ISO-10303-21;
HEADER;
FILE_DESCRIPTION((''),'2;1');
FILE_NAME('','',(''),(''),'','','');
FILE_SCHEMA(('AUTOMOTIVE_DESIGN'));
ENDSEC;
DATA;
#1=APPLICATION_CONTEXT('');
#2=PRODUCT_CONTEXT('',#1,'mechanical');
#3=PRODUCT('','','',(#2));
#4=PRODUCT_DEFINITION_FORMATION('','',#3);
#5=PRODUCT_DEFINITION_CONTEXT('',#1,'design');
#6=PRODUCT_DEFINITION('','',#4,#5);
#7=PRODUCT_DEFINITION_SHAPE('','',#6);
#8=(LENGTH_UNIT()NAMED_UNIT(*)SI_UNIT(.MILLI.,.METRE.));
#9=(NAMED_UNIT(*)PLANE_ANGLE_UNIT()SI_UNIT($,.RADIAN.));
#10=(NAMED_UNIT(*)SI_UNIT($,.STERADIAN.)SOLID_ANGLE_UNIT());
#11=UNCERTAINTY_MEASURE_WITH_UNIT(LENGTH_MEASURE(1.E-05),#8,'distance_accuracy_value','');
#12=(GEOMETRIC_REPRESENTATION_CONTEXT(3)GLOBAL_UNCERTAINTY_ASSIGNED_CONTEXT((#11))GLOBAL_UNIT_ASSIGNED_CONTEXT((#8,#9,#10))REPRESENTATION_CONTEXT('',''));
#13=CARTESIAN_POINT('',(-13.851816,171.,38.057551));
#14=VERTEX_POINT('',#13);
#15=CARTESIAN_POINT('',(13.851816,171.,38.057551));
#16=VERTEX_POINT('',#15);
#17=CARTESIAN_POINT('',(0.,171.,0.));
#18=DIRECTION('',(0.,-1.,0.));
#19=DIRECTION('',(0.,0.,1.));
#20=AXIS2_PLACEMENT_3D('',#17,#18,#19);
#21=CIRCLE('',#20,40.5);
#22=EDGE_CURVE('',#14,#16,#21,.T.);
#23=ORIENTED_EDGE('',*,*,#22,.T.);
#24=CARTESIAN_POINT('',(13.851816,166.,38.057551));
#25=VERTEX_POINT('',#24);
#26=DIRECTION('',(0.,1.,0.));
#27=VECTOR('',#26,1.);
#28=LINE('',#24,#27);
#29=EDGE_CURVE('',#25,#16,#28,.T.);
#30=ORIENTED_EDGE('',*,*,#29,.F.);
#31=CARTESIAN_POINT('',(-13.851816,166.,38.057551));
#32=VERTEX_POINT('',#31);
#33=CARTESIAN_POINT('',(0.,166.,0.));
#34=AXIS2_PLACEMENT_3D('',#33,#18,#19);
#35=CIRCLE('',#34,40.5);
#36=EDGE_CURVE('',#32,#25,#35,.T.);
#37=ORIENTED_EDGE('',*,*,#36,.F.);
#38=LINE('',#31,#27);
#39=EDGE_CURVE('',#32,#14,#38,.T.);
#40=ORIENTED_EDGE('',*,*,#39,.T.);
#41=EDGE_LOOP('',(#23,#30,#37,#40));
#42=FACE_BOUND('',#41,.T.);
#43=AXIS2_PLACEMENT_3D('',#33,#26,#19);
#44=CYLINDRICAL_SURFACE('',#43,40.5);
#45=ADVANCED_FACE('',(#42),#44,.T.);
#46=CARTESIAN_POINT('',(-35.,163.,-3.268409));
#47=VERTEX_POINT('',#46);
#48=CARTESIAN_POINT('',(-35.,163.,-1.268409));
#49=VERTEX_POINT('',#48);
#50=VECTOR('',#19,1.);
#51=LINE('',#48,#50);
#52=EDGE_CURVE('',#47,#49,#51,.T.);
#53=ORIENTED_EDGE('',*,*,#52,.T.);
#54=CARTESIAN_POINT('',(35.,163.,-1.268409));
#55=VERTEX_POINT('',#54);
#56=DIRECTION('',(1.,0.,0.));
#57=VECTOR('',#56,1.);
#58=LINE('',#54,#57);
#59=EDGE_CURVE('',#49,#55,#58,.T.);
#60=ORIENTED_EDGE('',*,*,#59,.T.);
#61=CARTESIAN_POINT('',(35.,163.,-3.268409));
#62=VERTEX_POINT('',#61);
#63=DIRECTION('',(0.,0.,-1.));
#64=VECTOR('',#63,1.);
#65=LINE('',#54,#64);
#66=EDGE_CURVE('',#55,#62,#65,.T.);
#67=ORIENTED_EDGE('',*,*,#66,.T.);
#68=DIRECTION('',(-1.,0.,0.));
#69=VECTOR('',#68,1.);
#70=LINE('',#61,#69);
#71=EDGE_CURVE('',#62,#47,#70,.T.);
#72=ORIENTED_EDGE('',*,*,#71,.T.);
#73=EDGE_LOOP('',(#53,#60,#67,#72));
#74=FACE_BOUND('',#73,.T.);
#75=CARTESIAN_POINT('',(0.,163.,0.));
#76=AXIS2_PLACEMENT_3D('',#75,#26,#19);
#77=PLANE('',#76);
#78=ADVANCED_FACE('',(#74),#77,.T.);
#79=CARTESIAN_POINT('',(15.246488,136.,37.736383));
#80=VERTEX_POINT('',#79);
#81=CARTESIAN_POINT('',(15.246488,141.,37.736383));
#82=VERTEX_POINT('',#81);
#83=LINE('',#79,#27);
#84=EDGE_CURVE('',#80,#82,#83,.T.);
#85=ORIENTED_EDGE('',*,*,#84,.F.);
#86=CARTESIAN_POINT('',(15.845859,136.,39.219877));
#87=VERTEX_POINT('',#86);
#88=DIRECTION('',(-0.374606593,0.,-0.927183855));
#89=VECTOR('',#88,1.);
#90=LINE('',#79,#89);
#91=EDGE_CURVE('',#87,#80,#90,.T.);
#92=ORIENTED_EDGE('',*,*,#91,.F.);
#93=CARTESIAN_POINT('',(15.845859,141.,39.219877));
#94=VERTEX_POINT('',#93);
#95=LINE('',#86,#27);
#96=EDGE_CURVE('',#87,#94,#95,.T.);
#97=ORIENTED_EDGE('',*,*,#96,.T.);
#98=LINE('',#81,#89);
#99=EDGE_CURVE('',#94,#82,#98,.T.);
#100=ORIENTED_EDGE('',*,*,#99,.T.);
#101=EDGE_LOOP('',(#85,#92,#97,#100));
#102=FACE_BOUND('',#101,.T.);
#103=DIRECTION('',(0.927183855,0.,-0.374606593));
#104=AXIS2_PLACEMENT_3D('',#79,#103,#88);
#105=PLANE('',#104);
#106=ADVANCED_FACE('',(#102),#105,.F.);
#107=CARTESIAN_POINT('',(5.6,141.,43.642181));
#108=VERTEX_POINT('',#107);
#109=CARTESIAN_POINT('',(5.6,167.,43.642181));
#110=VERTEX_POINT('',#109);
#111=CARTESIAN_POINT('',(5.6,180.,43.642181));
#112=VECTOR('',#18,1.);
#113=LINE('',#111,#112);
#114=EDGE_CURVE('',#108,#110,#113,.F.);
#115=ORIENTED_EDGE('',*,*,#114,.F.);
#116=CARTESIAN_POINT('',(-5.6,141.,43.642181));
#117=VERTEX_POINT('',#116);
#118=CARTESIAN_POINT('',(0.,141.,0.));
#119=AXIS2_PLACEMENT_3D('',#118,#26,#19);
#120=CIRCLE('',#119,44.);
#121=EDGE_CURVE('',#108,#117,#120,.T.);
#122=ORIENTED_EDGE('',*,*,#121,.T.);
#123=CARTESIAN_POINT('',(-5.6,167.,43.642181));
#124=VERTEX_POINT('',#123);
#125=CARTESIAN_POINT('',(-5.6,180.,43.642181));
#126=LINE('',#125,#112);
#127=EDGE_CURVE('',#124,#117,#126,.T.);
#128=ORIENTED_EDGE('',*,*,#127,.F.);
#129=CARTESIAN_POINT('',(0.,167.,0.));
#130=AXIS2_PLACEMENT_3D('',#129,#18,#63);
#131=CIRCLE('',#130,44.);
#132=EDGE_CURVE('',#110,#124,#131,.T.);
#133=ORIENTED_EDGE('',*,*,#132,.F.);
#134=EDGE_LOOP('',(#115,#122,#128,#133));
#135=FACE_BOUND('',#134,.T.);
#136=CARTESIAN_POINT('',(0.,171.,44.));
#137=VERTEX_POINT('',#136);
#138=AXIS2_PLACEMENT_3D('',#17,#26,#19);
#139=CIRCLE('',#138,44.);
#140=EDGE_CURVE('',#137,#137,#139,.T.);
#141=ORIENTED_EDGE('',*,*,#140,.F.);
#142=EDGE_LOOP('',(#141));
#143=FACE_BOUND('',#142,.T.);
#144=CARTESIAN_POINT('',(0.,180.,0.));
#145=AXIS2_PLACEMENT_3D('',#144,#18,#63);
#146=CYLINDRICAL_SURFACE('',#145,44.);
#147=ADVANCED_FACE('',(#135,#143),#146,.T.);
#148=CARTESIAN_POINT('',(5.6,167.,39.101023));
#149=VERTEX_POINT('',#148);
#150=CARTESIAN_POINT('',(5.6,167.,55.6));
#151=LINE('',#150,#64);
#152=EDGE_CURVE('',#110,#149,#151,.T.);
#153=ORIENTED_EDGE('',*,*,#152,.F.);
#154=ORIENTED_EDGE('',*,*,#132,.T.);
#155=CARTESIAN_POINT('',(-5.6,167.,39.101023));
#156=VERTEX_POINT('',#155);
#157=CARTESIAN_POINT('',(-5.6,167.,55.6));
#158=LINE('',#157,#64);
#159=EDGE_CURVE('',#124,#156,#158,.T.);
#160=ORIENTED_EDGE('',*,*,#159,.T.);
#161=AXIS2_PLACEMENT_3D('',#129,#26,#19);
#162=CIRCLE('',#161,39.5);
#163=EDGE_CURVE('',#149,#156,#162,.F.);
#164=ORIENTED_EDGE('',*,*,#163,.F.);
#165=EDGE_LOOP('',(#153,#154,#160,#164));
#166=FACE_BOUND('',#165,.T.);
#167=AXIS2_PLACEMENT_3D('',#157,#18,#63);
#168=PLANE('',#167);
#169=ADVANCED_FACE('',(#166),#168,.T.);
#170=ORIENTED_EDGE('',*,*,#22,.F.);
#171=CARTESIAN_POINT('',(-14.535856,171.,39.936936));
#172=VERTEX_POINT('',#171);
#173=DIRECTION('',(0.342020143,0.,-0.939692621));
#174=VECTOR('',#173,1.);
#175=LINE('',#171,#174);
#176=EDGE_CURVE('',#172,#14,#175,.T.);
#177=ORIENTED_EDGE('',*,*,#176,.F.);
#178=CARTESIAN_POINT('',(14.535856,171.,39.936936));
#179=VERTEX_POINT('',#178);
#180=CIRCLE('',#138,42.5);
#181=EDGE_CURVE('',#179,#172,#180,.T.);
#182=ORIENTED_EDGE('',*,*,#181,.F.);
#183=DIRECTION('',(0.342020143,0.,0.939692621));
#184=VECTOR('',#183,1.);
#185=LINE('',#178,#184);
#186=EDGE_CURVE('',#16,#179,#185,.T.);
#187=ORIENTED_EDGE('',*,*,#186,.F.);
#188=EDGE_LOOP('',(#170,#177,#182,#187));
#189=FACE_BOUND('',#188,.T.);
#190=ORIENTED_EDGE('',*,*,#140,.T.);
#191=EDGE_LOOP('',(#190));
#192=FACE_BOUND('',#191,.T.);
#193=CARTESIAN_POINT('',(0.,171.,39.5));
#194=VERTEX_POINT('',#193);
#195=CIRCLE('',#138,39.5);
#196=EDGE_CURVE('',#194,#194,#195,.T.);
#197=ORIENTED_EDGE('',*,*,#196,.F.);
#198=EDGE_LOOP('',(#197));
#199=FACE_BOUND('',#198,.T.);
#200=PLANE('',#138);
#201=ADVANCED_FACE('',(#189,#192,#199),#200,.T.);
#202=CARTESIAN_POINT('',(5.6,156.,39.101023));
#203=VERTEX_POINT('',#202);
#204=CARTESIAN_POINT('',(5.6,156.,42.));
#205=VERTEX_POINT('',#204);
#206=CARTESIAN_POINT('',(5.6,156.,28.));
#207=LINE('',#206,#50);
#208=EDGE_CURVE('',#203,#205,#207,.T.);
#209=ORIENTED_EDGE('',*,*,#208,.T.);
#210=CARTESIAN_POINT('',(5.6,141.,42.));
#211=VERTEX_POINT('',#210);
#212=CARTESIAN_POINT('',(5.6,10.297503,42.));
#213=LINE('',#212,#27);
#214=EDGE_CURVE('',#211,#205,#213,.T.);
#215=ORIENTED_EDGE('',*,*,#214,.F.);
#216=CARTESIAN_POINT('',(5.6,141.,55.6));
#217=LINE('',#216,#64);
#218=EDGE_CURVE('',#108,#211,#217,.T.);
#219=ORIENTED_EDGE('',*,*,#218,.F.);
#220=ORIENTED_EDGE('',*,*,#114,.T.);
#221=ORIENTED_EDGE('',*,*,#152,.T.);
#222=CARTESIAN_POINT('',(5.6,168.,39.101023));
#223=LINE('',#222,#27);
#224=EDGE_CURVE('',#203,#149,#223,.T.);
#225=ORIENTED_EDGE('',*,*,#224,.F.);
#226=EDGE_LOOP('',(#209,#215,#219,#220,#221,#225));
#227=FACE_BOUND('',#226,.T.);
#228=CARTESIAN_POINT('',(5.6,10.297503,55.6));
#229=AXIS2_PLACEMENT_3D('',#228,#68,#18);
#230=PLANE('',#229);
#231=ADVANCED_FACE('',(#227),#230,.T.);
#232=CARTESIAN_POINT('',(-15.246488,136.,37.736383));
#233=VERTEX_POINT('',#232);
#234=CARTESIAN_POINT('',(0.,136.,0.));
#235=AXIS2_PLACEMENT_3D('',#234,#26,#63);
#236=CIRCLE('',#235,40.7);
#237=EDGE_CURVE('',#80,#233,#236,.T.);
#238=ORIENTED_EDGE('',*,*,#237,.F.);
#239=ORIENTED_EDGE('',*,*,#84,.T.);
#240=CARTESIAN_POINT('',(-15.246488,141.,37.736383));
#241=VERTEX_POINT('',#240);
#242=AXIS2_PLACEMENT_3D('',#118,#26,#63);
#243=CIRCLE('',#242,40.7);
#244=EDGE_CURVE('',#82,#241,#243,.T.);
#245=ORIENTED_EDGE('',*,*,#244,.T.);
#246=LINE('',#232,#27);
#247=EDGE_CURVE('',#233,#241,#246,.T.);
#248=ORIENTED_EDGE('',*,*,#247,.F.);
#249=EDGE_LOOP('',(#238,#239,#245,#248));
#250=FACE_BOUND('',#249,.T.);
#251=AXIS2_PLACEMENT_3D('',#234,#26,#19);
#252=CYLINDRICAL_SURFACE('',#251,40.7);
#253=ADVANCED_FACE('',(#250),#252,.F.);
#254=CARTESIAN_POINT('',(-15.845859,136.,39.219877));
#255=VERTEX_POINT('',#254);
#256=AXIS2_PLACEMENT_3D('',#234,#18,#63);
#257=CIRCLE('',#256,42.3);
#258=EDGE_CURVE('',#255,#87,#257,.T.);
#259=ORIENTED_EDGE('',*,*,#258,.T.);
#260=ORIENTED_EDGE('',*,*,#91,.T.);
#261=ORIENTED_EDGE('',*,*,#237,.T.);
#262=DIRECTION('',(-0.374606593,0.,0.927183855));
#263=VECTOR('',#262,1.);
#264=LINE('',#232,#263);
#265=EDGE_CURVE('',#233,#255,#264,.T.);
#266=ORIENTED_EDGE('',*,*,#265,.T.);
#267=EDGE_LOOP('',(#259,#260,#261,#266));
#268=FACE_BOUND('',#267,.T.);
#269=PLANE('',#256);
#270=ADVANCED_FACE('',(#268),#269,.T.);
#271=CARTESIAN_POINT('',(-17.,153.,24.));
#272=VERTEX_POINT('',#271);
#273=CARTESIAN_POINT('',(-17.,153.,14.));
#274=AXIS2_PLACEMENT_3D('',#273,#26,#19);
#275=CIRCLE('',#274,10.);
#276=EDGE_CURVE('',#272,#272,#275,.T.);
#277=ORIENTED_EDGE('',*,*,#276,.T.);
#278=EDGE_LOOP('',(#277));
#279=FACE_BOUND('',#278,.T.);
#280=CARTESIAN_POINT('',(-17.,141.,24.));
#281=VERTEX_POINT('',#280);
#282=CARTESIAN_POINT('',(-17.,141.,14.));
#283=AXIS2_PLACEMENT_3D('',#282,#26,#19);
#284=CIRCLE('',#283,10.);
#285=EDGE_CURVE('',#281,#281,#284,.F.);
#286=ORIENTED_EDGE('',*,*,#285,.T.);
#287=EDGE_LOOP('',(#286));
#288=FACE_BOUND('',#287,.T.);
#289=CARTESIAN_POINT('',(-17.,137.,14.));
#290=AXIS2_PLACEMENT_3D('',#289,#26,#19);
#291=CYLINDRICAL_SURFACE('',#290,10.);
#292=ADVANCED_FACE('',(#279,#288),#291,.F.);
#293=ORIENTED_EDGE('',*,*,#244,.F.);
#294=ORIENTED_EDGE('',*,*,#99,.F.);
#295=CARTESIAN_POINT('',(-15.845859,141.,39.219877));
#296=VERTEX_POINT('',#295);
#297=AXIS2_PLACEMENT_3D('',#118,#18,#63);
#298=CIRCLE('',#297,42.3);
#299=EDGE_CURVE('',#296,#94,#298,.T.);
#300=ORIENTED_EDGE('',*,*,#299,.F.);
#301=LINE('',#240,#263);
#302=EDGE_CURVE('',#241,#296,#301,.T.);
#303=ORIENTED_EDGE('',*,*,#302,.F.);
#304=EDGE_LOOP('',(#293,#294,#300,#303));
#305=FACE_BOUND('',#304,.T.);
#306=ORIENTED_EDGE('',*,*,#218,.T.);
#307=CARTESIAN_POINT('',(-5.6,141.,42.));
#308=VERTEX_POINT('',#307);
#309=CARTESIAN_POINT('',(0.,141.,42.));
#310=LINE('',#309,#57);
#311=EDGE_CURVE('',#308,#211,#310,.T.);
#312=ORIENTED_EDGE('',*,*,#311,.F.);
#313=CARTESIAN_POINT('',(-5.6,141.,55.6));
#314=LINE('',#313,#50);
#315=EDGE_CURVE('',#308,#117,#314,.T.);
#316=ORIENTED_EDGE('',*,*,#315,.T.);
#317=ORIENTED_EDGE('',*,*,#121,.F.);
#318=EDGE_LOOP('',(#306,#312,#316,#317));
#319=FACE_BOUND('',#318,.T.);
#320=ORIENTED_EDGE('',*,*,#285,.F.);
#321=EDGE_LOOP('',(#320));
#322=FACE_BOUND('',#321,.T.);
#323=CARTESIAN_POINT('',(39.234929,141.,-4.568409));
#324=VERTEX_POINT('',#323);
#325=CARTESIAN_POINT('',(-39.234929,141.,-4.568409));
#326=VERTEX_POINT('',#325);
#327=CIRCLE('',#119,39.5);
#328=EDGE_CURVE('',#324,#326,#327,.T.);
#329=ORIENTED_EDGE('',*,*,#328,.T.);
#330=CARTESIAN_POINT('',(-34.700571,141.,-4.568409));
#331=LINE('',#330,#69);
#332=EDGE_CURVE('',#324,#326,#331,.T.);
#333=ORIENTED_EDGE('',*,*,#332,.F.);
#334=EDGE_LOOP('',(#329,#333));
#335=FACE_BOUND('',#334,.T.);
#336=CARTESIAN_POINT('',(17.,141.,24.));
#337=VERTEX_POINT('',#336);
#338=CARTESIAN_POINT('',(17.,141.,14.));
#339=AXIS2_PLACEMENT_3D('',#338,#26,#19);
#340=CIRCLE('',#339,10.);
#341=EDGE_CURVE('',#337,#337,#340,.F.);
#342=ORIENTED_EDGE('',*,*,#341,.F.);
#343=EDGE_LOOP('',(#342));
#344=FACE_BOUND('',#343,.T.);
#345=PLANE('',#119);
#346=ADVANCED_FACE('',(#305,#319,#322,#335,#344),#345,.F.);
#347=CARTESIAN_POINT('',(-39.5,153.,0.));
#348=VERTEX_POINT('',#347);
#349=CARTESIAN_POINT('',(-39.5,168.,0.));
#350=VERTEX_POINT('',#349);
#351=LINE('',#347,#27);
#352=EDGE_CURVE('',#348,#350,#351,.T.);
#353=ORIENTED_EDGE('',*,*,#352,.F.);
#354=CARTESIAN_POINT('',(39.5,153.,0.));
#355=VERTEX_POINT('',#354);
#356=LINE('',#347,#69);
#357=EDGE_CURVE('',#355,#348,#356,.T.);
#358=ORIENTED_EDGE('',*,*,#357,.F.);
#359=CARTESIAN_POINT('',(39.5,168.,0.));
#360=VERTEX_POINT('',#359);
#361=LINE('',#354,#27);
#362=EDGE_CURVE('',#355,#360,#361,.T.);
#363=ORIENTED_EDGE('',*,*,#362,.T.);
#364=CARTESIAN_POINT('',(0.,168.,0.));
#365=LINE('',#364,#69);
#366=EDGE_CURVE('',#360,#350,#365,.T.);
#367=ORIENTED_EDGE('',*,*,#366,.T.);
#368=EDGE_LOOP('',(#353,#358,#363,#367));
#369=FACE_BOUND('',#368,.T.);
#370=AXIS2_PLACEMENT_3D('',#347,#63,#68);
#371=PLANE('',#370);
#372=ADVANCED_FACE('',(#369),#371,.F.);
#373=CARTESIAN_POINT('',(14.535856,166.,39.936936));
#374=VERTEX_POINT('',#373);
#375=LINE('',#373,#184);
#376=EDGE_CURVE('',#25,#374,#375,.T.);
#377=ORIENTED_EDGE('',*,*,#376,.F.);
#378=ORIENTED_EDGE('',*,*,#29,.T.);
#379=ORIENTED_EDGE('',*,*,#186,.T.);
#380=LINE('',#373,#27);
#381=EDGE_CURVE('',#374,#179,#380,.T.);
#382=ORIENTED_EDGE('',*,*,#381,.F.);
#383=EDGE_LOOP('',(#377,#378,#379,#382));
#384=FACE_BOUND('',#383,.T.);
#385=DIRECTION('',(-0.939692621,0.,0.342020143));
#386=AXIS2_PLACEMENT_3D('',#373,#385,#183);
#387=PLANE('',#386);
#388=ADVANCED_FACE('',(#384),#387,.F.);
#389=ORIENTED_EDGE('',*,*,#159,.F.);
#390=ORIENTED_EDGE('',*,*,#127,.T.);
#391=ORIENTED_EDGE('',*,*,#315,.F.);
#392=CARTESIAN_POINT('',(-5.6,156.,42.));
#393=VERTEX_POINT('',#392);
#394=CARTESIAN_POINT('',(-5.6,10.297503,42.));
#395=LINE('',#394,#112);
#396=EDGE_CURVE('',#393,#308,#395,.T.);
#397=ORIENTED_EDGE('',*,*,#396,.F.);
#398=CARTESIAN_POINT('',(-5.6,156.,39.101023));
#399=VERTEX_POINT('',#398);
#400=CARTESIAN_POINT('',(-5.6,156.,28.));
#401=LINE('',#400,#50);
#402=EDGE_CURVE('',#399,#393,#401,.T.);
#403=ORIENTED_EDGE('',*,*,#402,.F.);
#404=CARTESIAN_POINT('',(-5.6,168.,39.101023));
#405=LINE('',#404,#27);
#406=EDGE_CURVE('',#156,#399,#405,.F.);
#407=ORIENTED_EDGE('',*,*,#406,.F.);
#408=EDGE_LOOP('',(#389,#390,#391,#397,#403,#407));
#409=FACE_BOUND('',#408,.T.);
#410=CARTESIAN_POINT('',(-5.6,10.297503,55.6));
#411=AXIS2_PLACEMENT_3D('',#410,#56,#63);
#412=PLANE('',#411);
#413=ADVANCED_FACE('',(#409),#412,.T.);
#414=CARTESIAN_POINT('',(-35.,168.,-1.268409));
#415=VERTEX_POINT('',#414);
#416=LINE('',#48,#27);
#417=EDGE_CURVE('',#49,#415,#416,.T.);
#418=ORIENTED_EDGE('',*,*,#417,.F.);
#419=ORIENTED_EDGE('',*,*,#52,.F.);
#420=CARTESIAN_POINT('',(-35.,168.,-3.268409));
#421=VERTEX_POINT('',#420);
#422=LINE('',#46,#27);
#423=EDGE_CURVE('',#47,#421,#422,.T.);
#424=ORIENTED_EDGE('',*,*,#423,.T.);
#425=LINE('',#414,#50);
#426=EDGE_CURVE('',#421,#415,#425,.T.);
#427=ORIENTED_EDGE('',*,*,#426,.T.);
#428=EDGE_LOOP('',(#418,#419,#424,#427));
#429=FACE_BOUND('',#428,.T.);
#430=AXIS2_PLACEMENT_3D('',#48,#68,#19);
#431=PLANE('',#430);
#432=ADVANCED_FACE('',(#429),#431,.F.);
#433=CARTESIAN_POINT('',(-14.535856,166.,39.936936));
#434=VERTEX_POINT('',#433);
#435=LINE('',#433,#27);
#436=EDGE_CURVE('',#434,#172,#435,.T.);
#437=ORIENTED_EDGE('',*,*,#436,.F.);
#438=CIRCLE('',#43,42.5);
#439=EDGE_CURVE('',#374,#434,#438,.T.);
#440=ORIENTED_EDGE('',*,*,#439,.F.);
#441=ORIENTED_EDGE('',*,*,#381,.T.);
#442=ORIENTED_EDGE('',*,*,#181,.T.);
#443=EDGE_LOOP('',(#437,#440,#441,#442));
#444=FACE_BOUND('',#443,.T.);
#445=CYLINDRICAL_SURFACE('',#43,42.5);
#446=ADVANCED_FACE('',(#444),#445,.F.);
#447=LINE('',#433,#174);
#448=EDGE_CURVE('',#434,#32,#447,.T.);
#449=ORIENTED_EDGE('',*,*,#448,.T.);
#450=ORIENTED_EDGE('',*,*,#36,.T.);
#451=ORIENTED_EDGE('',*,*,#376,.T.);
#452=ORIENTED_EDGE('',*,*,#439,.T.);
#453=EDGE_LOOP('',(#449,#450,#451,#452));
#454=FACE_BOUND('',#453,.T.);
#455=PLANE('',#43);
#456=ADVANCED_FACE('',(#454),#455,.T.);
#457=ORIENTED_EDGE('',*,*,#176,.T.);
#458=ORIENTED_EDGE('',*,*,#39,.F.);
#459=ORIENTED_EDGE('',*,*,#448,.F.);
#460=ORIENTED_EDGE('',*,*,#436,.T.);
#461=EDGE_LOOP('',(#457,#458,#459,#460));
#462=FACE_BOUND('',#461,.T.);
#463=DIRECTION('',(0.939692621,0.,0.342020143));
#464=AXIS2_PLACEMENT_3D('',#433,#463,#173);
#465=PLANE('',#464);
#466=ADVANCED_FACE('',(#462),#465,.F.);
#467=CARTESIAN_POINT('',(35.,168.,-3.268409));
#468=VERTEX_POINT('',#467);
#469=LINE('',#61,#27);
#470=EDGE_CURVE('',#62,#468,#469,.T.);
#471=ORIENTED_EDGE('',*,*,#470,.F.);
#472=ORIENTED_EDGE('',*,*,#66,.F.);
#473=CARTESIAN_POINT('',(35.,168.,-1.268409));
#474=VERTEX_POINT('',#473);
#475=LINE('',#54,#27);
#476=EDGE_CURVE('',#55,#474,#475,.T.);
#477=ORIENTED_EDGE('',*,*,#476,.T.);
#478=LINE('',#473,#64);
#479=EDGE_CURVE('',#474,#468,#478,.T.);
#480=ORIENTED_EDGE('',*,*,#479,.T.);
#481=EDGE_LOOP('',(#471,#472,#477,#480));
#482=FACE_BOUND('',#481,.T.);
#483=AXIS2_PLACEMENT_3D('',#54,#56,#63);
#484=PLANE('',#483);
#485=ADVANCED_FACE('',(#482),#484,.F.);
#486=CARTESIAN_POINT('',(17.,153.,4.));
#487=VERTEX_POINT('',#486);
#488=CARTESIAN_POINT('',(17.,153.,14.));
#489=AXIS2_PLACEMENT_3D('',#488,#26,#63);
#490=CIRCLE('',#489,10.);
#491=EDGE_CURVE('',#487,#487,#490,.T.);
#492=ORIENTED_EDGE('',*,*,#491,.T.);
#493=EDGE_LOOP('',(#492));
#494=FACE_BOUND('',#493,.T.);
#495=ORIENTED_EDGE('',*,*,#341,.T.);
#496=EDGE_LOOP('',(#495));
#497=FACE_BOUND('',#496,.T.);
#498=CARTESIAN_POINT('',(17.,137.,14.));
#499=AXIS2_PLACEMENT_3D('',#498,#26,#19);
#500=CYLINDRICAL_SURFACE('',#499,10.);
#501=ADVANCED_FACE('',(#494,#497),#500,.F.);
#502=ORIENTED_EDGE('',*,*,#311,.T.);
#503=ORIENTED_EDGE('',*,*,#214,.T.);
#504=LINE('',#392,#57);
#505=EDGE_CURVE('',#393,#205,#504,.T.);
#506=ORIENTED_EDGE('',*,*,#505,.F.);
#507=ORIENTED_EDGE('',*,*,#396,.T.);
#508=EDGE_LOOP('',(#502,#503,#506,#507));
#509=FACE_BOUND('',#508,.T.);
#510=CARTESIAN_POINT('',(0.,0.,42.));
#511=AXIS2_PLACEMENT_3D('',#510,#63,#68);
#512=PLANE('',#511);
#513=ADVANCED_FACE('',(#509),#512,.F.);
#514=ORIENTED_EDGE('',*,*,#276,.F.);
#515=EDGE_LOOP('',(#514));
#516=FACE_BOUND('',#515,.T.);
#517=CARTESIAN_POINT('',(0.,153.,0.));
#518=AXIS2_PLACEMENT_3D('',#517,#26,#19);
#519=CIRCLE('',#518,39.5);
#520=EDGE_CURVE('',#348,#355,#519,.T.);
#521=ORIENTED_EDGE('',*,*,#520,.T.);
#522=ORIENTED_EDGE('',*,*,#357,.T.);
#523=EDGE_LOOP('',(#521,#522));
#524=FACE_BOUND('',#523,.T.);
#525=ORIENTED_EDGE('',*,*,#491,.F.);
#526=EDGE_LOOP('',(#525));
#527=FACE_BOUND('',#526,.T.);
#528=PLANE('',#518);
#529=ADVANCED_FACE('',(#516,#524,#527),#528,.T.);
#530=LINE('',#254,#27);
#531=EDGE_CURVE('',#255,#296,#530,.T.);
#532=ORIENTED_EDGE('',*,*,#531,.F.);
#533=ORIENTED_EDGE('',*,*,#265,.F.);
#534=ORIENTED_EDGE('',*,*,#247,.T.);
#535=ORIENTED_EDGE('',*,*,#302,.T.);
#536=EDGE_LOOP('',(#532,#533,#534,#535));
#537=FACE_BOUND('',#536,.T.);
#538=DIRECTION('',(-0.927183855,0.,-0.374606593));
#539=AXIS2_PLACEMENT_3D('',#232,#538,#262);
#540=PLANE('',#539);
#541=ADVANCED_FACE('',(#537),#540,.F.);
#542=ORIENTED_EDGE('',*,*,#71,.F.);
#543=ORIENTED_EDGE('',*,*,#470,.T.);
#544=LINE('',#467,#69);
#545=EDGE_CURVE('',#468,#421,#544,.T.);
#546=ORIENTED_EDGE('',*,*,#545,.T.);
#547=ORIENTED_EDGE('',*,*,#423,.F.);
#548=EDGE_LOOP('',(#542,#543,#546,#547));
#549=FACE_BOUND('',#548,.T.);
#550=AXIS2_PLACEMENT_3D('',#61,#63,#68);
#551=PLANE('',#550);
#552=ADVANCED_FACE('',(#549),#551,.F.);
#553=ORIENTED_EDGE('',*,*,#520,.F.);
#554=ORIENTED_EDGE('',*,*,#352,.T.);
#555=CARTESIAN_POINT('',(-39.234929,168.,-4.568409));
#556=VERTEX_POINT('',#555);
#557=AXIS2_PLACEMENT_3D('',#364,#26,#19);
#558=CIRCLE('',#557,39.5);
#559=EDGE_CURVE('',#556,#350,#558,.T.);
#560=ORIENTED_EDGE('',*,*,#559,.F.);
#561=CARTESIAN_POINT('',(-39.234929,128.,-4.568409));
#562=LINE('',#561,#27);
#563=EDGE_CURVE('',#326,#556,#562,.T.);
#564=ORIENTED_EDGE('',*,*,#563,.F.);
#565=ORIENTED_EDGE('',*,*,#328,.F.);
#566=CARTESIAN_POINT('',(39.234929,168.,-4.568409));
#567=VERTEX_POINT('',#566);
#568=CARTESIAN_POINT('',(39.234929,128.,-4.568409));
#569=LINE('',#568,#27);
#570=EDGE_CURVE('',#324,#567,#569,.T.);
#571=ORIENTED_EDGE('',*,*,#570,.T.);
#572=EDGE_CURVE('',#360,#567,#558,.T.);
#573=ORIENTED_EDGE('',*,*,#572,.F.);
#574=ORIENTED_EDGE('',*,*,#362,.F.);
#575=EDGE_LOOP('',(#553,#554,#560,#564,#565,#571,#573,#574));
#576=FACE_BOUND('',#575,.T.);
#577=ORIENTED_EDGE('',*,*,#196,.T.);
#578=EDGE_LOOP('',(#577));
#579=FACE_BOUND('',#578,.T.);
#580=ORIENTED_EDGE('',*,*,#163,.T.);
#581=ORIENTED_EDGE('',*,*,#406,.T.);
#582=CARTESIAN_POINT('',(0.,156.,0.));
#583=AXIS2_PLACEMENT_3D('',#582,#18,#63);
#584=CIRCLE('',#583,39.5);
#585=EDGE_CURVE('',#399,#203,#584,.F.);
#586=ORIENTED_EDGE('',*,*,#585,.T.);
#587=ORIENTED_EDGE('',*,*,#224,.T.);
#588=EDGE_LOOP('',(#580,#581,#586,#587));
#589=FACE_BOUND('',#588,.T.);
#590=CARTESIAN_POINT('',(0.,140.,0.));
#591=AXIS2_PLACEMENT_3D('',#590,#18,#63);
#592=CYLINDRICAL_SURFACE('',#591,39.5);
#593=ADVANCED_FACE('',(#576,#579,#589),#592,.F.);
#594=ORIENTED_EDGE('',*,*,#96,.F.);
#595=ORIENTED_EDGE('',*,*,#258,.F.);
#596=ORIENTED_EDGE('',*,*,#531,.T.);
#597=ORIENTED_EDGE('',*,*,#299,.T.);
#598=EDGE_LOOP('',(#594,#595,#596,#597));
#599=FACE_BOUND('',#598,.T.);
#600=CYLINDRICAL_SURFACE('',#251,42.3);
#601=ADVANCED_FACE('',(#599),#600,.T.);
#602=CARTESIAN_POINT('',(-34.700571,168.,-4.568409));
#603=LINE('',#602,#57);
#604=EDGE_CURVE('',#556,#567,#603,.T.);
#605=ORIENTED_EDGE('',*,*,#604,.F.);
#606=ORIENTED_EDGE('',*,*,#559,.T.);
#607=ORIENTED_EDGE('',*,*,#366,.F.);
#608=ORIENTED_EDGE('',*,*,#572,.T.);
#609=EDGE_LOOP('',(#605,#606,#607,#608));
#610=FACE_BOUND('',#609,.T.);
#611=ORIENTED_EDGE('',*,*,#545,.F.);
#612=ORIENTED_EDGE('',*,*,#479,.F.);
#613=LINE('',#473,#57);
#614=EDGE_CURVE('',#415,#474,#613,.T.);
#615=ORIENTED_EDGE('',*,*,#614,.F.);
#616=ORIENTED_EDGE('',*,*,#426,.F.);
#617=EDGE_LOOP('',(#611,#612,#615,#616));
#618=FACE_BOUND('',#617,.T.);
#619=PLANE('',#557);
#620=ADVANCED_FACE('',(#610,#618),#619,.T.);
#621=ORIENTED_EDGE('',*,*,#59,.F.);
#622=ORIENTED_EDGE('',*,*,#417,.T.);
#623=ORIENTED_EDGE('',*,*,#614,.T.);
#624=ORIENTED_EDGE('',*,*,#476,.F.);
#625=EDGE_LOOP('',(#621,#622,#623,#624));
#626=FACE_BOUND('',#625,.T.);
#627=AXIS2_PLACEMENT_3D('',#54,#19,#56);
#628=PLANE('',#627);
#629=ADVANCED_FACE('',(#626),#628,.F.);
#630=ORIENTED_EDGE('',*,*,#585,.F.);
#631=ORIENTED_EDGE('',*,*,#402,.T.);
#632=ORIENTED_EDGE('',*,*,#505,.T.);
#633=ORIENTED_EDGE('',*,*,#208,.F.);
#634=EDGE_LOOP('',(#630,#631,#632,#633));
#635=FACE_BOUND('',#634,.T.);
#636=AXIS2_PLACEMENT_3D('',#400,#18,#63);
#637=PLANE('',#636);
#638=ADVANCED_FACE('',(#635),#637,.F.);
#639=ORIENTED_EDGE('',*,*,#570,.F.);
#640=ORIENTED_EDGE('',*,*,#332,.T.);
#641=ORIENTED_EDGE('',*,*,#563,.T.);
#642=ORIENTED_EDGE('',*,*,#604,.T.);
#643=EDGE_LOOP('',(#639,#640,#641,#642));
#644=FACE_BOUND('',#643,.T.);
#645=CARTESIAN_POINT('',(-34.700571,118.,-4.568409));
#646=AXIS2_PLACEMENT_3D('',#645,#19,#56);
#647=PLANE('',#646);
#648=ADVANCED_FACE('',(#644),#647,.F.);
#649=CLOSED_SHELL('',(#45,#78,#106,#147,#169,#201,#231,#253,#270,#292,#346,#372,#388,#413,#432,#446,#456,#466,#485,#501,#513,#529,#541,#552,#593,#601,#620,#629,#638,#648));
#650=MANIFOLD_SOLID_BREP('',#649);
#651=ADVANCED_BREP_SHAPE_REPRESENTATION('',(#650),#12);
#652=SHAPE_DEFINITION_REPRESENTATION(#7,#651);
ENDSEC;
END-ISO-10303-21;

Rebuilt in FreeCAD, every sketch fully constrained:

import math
import FreeCAD as App
import Part
import Sketcher
Q = App.Units.Quantity


def add_polygon(sketch, points):
    """Adds a closed chain of lines whose ends are joined by coincident constraints."""
    first, n = sketch.GeometryCount, len(points)
    for a, b in zip(points, points[1:] + points[:1]):
        sketch.addGeometry(Part.LineSegment(App.Vector(*a, 0), App.Vector(*b, 0)), False)
    for i in range(n):
        sketch.addConstraint(Sketcher.Constraint("Coincident", first + i, 2, first + (i + 1) % n, 1))

doc = App.newDocument("Part")
body = doc.addObject("PartDesign::Body", "Body")

# Sketch on XZ plane
sketch1 = doc.addObject("Sketcher::SketchObject", "Sketch")
body.addObject(sketch1)
sketch1.AttachmentSupport = (doc.XZ_Plane, [""])
sketch1.MapMode = "FlatFace"
sketch1.addGeometry(Part.Circle(App.Vector(0, 0, 0), App.Vector(0, 0, 1), 44), False)
sketch1.addConstraint([
    Sketcher.Constraint("Coincident", 0, 3, -1, 1),
    Sketcher.Constraint("Diameter", 0, Q("88 mm")),
])
pad1 = doc.addObject("PartDesign::Pad", "Pad")
body.addObject(pad1)
pad1.Profile = sketch1
pad1.Length = 180
pad1.Reversed = True

# Sketch on XZ plane
sketch2 = doc.addObject("Sketcher::SketchObject", "Sketch001")
body.addObject(sketch2)
sketch2.AttachmentSupport = (doc.XZ_Plane, [""])
sketch2.MapMode = "FlatFace"
sketch2.AttachmentOffset = App.Placement(App.Vector(0, 0, -25), App.Rotation())
sketch2.addGeometry(Part.Circle(App.Vector(0, 0, 0), App.Vector(0, 0, 1), 39.5), False)
sketch2.addConstraint([
    Sketcher.Constraint("Coincident", 0, 3, -1, 1),
    Sketcher.Constraint("Diameter", 0, Q("79 mm")),
])
pocket1 = doc.addObject("PartDesign::Pocket", "Pocket")
body.addObject(pocket1)
pocket1.Profile = sketch2
pocket1.Length = 115

# Sketch on XZ plane
sketch3 = doc.addObject("Sketcher::SketchObject", "Sketch002")
body.addObject(sketch3)
sketch3.AttachmentSupport = (doc.XZ_Plane, [""])
sketch3.MapMode = "FlatFace"
sketch3.AttachmentOffset = App.Placement(App.Vector(0, 0, -41), App.Rotation())
sketch3.addGeometry(Part.Circle(App.Vector(0, 0, 0), App.Vector(0, 0, 1), 35), False)
sketch3.addConstraint([
    Sketcher.Constraint("Coincident", 0, 3, -1, 1),
    Sketcher.Constraint("Diameter", 0, Q("70 mm")),
])
pocket2 = doc.addObject("PartDesign::Pocket", "Pocket001")
body.addObject(pocket2)
pocket2.Profile = sketch3
pocket2.Length = 18
pocket2.Reversed = True

# Sketch on XY plane
sketch4 = doc.addObject("Sketcher::SketchObject", "Sketch003")
body.addObject(sketch4)
sketch4.AttachmentSupport = (doc.XY_Plane, [""])
sketch4.MapMode = "FlatFace"
sketch4.AttachmentOffset = App.Placement(App.Vector(0, 0, 42), App.Rotation())
add_polygon(sketch4, [(-5.6, 167), (-5.6, 10.297503), (5.6, 10.297503), (5.6, 167)])  # lines 0-3
sketch4.addConstraint([
    Sketcher.Constraint("Vertical", 0),
    Sketcher.Constraint("Horizontal", 1),
    Sketcher.Constraint("Vertical", 2),
    Sketcher.Constraint("Horizontal", 3),
    Sketcher.Constraint("DistanceX", 1, 1, 1, 2, Q("11.2 mm")),
    Sketcher.Constraint("DistanceY", -1, 1, 2, 2, Q("167 mm")),
    Sketcher.Constraint("DistanceX", 0, 2, -1, 1, Q("5.6 mm")),
    Sketcher.Constraint("DistanceY", 0, 2, 0, 1, Q("156.702497 mm")),
])
pocket3 = doc.addObject("PartDesign::Pocket", "Pocket002")
body.addObject(pocket3)
pocket3.Profile = sketch4
pocket3.Length = 13.6
pocket3.Reversed = True

# Sketch on XY plane
sketch5 = doc.addObject("Sketcher::SketchObject", "Sketch004")
body.addObject(sketch5)
sketch5.AttachmentSupport = (doc.XY_Plane, [""])
sketch5.MapMode = "FlatFace"
sketch5.AttachmentOffset = App.Placement(App.Vector(0, 0, 42), App.Rotation())
add_polygon(sketch5, [(-5.6, 18.973871), (-5.6, 10.297503), (5.6, 10.297503), (5.6, 18.973871)])  # lines 0-3
sketch5.addConstraint([
    Sketcher.Constraint("Vertical", 0),
    Sketcher.Constraint("Horizontal", 1),
    Sketcher.Constraint("Vertical", 2),
    Sketcher.Constraint("Horizontal", 3),
    Sketcher.Constraint("DistanceX", 1, 1, 1, 2, Q("11.2 mm")),
    Sketcher.Constraint("DistanceX", 0, 2, -1, 1, Q("5.6 mm")),
    Sketcher.Constraint("DistanceY", 0, 2, 0, 1, Q("8.676367 mm")),
    Sketcher.Constraint("DistanceY", -1, 1, 2, 2, Q("18.973871 mm")),
])
pocket4 = doc.addObject("PartDesign::Pocket", "Pocket003")
body.addObject(pocket4)
pocket4.Profile = sketch5
pocket4.Length = 18

# Sketch on XZ plane
sketch6 = doc.addObject("Sketcher::SketchObject", "Sketch005")
body.addObject(sketch6)
sketch6.AttachmentSupport = (doc.XZ_Plane, [""])
sketch6.MapMode = "FlatFace"
sketch6.AttachmentOffset = App.Placement(App.Vector(0, 0, -180), App.Rotation())
sketch6.addGeometry(Part.Circle(App.Vector(0, 0, 0), App.Vector(0, 0, 1), 39.5), False)
sketch6.addConstraint([
    Sketcher.Constraint("Coincident", 0, 3, -1, 1),
    Sketcher.Constraint("Diameter", 0, Q("79 mm")),
])
pocket5 = doc.addObject("PartDesign::Pocket", "Pocket004")
body.addObject(pocket5)
pocket5.Profile = sketch6
pocket5.Length = 12
pocket5.Reversed = True

# Sketch on XZ plane
sketch7 = doc.addObject("Sketcher::SketchObject", "Sketch006")
body.addObject(sketch7)
sketch7.AttachmentSupport = (doc.XZ_Plane, [""])
sketch7.MapMode = "FlatFace"
sketch7.AttachmentOffset = App.Placement(App.Vector(0, 0, -174), App.Rotation())
sketch7.addGeometry([
    Part.LineSegment(App.Vector(39.5, 0, 0), App.Vector(-39.5, 0, 0)),
    Part.ArcOfCircle(Part.Circle(App.Vector(0, 0, 0), App.Vector(0, 0, 1), 39.5), math.radians(0), math.radians(180)),
], False)
sketch7.addConstraint([
    Sketcher.Constraint("Coincident", 0, 1, 1, 1),
    Sketcher.Constraint("Coincident", 1, 2, 0, 2),
    Sketcher.Constraint("Horizontal", 0),
    Sketcher.Constraint("Coincident", 1, 3, -1, 1),
    Sketcher.Constraint("PointOnObject", 0, 1, -1),
    Sketcher.Constraint("Radius", 1, Q("39.5 mm")),
])
pocket6 = doc.addObject("PartDesign::Pocket", "Pocket005")
body.addObject(pocket6)
pocket6.Profile = sketch7
pocket6.Length = 42
pocket6.Midplane = True

# Sketch on XZ plane
sketch8 = doc.addObject("Sketcher::SketchObject", "Sketch007")
body.addObject(sketch8)
sketch8.AttachmentSupport = (doc.XZ_Plane, [""])
sketch8.MapMode = "FlatFace"
sketch8.AttachmentOffset = App.Placement(App.Vector(0, 0, -168), App.Rotation())
sketch8.addGeometry([
    Part.LineSegment(App.Vector(9, -26, 0), App.Vector(-15, -26, 0)),  # 0
    Part.ArcOfCircle(Part.Circle(App.Vector(-15, -21, 0), App.Vector(0, 0, 1), 5), math.radians(180), math.radians(270)),  # 1
    Part.LineSegment(App.Vector(-20, -21, 0), App.Vector(-20, -10, 0)),  # 2
    Part.ArcOfCircle(Part.Circle(App.Vector(-15, -10, 0), App.Vector(0, 0, 1), 5), math.radians(90), math.radians(180)),  # 3
    Part.LineSegment(App.Vector(-15, -5, 0), App.Vector(9, -5, 0)),  # 4
    Part.ArcOfCircle(Part.Circle(App.Vector(9, -10, 0), App.Vector(0, 0, 1), 5), math.radians(0), math.radians(90)),  # 5
    Part.LineSegment(App.Vector(14, -10, 0), App.Vector(14, -21, 0)),  # 6
    Part.ArcOfCircle(Part.Circle(App.Vector(9, -21, 0), App.Vector(0, 0, 1), 5), math.radians(-90), math.radians(0)),  # 7
], False)
sketch8.addConstraint([
    Sketcher.Constraint("Tangent", 0, 2, 1, 2),
    Sketcher.Constraint("Tangent", 1, 1, 2, 1),
    Sketcher.Constraint("Tangent", 2, 2, 3, 2),
    Sketcher.Constraint("Tangent", 3, 1, 4, 1),
    Sketcher.Constraint("Tangent", 4, 2, 5, 2),
    Sketcher.Constraint("Tangent", 5, 1, 6, 1),
    Sketcher.Constraint("Tangent", 6, 2, 7, 2),
    Sketcher.Constraint("Tangent", 7, 1, 0, 1),
    Sketcher.Constraint("Horizontal", 0),
    Sketcher.Constraint("Vertical", 2),
    Sketcher.Constraint("Horizontal", 4),
    Sketcher.Constraint("Vertical", 6),
    Sketcher.Constraint("Equal", 1, 3),
    Sketcher.Constraint("Equal", 3, 5),
    Sketcher.Constraint("Equal", 5, 7),
    Sketcher.Constraint("Radius", 1, Q("5 mm")),
    Sketcher.Constraint("DistanceX", 0, 2, 0, 1, Q("24 mm")),
    Sketcher.Constraint("DistanceY", 2, 1, 2, 2, Q("11 mm")),
    Sketcher.Constraint("DistanceX", 1, 3, -1, 1, Q("15 mm")),
    Sketcher.Constraint("DistanceY", 1, 3, -1, 1, Q("21 mm")),
])
pocket7 = doc.addObject("PartDesign::Pocket", "Pocket006")
body.addObject(pocket7)
pocket7.Profile = sketch8
pocket7.Length = 28
pocket7.Reversed = True

# Sketch on XZ plane
sketch9 = doc.addObject("Sketcher::SketchObject", "Sketch008")
body.addObject(sketch9)
sketch9.AttachmentSupport = (doc.XZ_Plane, [""])
sketch9.MapMode = "FlatFace"
sketch9.AttachmentOffset = App.Placement(App.Vector(0, 0, -5), App.Rotation())
sketch9.addGeometry(Part.Circle(App.Vector(0, 0, 0), App.Vector(0, 0, 1), 44), False)
sketch9.addConstraint([
    Sketcher.Constraint("Coincident", 0, 3, -1, 1),
    Sketcher.Constraint("Diameter", 0, Q("88 mm")),
])
pocket8 = doc.addObject("PartDesign::Pocket", "Pocket007")
body.addObject(pocket8)
pocket8.Profile = sketch9
pocket8.Length = 10
pocket8.Reversed = True

# Sketch on XZ plane
sketch10 = doc.addObject("Sketcher::SketchObject", "Sketch009")
body.addObject(sketch10)
sketch10.AttachmentSupport = (doc.XZ_Plane, [""])
sketch10.MapMode = "FlatFace"
sketch10.AttachmentOffset = App.Placement(App.Vector(0, 0, -168), App.Rotation())
sketch10.addGeometry([
    Part.LineSegment(App.Vector(-34.700571, -4.568409, 0), App.Vector(34.700571, -4.568409, 0)),
    Part.ArcOfCircle(Part.Circle(App.Vector(0, 0, 0), App.Vector(0, 0, 1), 35), math.radians(-172.500012), math.radians(-7.499988)),
], False)
sketch10.addConstraint([
    Sketcher.Constraint("Coincident", 0, 1, 1, 1),
    Sketcher.Constraint("Coincident", 1, 2, 0, 2),
    Sketcher.Constraint("Horizontal", 0),
    Sketcher.Constraint("Coincident", 1, 3, -1, 1),
    Sketcher.Constraint("Radius", 1, Q("35 mm")),
    Sketcher.Constraint("DistanceX", 0, 1, 0, 2, Q("69.401142 mm")),
])
pocket9 = doc.addObject("PartDesign::Pocket", "Pocket008")
body.addObject(pocket9)
pocket9.Profile = sketch10
pocket9.Length = 50
pocket9.Reversed = True

# Sketch on XZ plane
sketch11 = doc.addObject("Sketcher::SketchObject", "Sketch010")
body.addObject(sketch11)
sketch11.AttachmentSupport = (doc.XZ_Plane, [""])
sketch11.MapMode = "FlatFace"
sketch11.AttachmentOffset = App.Placement(App.Vector(0, 0, -153), App.Rotation())
sketch11.addGeometry([
    Part.Circle(App.Vector(-17, 14, 0), App.Vector(0, 0, 1), 10),
    Part.Circle(App.Vector(17, 14, 0), App.Vector(0, 0, 1), 10),
], False)
sketch11.addConstraint([
    Sketcher.Constraint("Equal", 0, 1),
    Sketcher.Constraint("Symmetric", 0, 3, 1, 3, -2),
    Sketcher.Constraint("Diameter", 0, Q("20 mm")),
    Sketcher.Constraint("DistanceX", 0, 3, -1, 1, Q("17 mm")),
    Sketcher.Constraint("DistanceY", -1, 1, 0, 3, Q("14 mm")),
])
pocket10 = doc.addObject("PartDesign::Pocket", "Pocket009")
body.addObject(pocket10)
pocket10.Profile = sketch11
pocket10.Length = 16
pocket10.Reversed = True

# Sketch on XY plane
sketch12 = doc.addObject("Sketcher::SketchObject", "Sketch011")
body.addObject(sketch12)
sketch12.AttachmentSupport = (doc.XY_Plane, [""])
sketch12.MapMode = "FlatFace"
sketch12.AttachmentOffset = App.Placement(App.Vector(0, 0, 42), App.Rotation())
add_polygon(sketch12, [(-5.6, 167), (-5.6, 156), (5.6, 156), (5.6, 167)])  # lines 0-3
sketch12.addConstraint([
    Sketcher.Constraint("Vertical", 0),
    Sketcher.Constraint("Horizontal", 1),
    Sketcher.Constraint("Vertical", 2),
    Sketcher.Constraint("Horizontal", 3),
    Sketcher.Constraint("DistanceY", 0, 2, 0, 1, Q("11 mm")),
    Sketcher.Constraint("DistanceX", 1, 1, 1, 2, Q("11.2 mm")),
    Sketcher.Constraint("DistanceY", -1, 1, 0, 2, Q("156 mm")),
    Sketcher.Constraint("DistanceX", 0, 2, -1, 1, Q("5.6 mm")),
])
pocket11 = doc.addObject("PartDesign::Pocket", "Pocket010")
body.addObject(pocket11)
pocket11.Profile = sketch12
pocket11.Length = 14

# Sketch on XZ plane
sketch13 = doc.addObject("Sketcher::SketchObject", "Sketch012")
body.addObject(sketch13)
sketch13.AttachmentSupport = (doc.XZ_Plane, [""])
sketch13.MapMode = "FlatFace"
sketch13.AttachmentOffset = App.Placement(App.Vector(0, 0, -5), App.Rotation())
sketch13.addGeometry(Part.Circle(App.Vector(0, 0, 0), App.Vector(0, 0, 1), 39), False)
sketch13.addConstraint([
    Sketcher.Constraint("Coincident", 0, 3, -1, 1),
    Sketcher.Constraint("Diameter", 0, Q("78 mm")),
])
pocket12 = doc.addObject("PartDesign::Pocket", "Pocket011")
body.addObject(pocket12)
pocket12.Profile = sketch13
pocket12.Length = 30

# Sketch on XZ plane
sketch14 = doc.addObject("Sketcher::SketchObject", "Sketch013")
body.addObject(sketch14)
sketch14.AttachmentSupport = (doc.XZ_Plane, [""])
sketch14.MapMode = "FlatFace"
sketch14.AttachmentOffset = App.Placement(App.Vector(0, 0, -5), App.Rotation())
sketch14.addGeometry([
    Part.Circle(App.Vector(0, 0, 0), App.Vector(0, 0, 1), 47),
    Part.Circle(App.Vector(0, 0, 0), App.Vector(0, 0, 1), 42),
], False)
sketch14.addConstraint([
    Sketcher.Constraint("Coincident", 0, 3, -1, 1),
    Sketcher.Constraint("Coincident", 1, 3, -1, 1),
    Sketcher.Constraint("Diameter", 0, Q("94 mm")),
    Sketcher.Constraint("Diameter", 1, Q("84 mm")),
])
pad2 = doc.addObject("PartDesign::Pad", "Pad001")
body.addObject(pad2)
pad2.Profile = sketch14
pad2.Length = 20

# Sketch on XZ plane
sketch15 = doc.addObject("Sketcher::SketchObject", "Sketch014")
body.addObject(sketch15)
sketch15.AttachmentSupport = (doc.XZ_Plane, [""])
sketch15.MapMode = "FlatFace"
sketch15.AttachmentOffset = App.Placement(App.Vector(0, 0, -168), App.Rotation())
sketch15.addGeometry([
    Part.LineSegment(App.Vector(-39.234929, -4.568409, 0), App.Vector(-34.700571, -4.568409, 0)),
    Part.ArcOfCircle(Part.Circle(App.Vector(0, 0, 0), App.Vector(0, 0, 1), 35), math.radians(-172.500012), math.radians(-7.499988)),
    Part.LineSegment(App.Vector(34.700571, -4.568409, 0), App.Vector(39.234929, -4.568409, 0)),
    Part.ArcOfCircle(Part.Circle(App.Vector(0, 0, 0), App.Vector(0, 0, 1), 39.5), math.radians(-173.358541), math.radians(-6.641459)),
], False)
sketch15.addConstraint([
    Sketcher.Constraint("Coincident", 0, 2, 1, 1),
    Sketcher.Constraint("Coincident", 1, 2, 2, 1),
    Sketcher.Constraint("Coincident", 2, 2, 3, 2),
    Sketcher.Constraint("Coincident", 3, 1, 0, 1),
    Sketcher.Constraint("Horizontal", 0),
    Sketcher.Constraint("Horizontal", 2),
    Sketcher.Constraint("Coincident", 1, 3, -1, 1),
    Sketcher.Constraint("Coincident", 3, 3, -1, 1),
    Sketcher.Constraint("Horizontal", 0, 2, 1, 2),
    Sketcher.Constraint("Radius", 1, Q("35 mm")),
    Sketcher.Constraint("Radius", 3, Q("39.5 mm")),
    Sketcher.Constraint("DistanceX", 0, 2, 2, 2, Q("73.9355 mm")),
])
pocket13 = doc.addObject("PartDesign::Pocket", "Pocket012")
body.addObject(pocket13)
pocket13.Profile = sketch15
pocket13.Length = 40
pocket13.Reversed = True

# Sketch on XZ plane
sketch16 = doc.addObject("Sketcher::SketchObject", "Sketch015")
body.addObject(sketch16)
sketch16.AttachmentSupport = (doc.XZ_Plane, [""])
sketch16.MapMode = "FlatFace"
sketch16.AttachmentOffset = App.Placement(App.Vector(0, 0, 15), App.Rotation())
sketch16.addGeometry(Part.Circle(App.Vector(0, 0, 0), App.Vector(0, 0, 1), 47), False)
sketch16.addConstraint([
    Sketcher.Constraint("Coincident", 0, 3, -1, 1),
    Sketcher.Constraint("Diameter", 0, Q("94 mm")),
])
pocket14 = doc.addObject("PartDesign::Pocket", "Pocket013")
body.addObject(pocket14)
pocket14.Profile = sketch16
pocket14.Length = 20

# Sketch on XZ plane
sketch17 = doc.addObject("Sketcher::SketchObject", "Sketch016")
body.addObject(sketch17)
sketch17.AttachmentSupport = (doc.XZ_Plane, [""])
sketch17.MapMode = "FlatFace"
sketch17.AttachmentOffset = App.Placement(App.Vector(0, 0, -141), App.Rotation())
sketch17.addGeometry(Part.Circle(App.Vector(0, 0, 0), App.Vector(0, 0, 1), 44), False)
sketch17.addConstraint([
    Sketcher.Constraint("Coincident", 0, 3, -1, 1),
    Sketcher.Constraint("Diameter", 0, Q("88 mm")),
])
pocket15 = doc.addObject("PartDesign::Pocket", "Pocket014")
body.addObject(pocket15)
pocket15.Profile = sketch17
pocket15.Type = "ThroughAll"
pocket15.Reversed = True

# Sketch on XZ plane
sketch18 = doc.addObject("Sketcher::SketchObject", "Sketch017")
body.addObject(sketch18)
sketch18.AttachmentSupport = (doc.XZ_Plane, [""])
sketch18.MapMode = "FlatFace"
sketch18.AttachmentOffset = App.Placement(App.Vector(0, 0, -141), App.Rotation())
sketch18.addGeometry([
    Part.LineSegment(App.Vector(15.845859, 39.219877, 0), App.Vector(15.246488, 37.736383, 0)),
    Part.ArcOfCircle(Part.Circle(App.Vector(0, 0, 0), App.Vector(0, 0, 1), 40.7), math.radians(112), math.radians(428)),
    Part.LineSegment(App.Vector(-15.246488, 37.736383, 0), App.Vector(-15.845859, 39.219877, 0)),
    Part.ArcOfCircle(Part.Circle(App.Vector(0, 0, 0), App.Vector(0, 0, 1), 42.3), math.radians(112), math.radians(428)),
], False)
sketch18.addConstraint([
    Sketcher.Constraint("Coincident", 0, 2, 1, 2),
    Sketcher.Constraint("Coincident", 1, 1, 2, 1),
    Sketcher.Constraint("Coincident", 2, 2, 3, 1),
    Sketcher.Constraint("Coincident", 3, 2, 0, 1),
    Sketcher.Constraint("Coincident", 1, 3, -1, 1),
    Sketcher.Constraint("Coincident", 3, 3, -1, 1),
    Sketcher.Constraint("Horizontal", 0, 2, 1, 1),
    Sketcher.Constraint("Horizontal", 2, 2, 3, 2),
    Sketcher.Constraint("Radius", 1, Q("40.7 mm")),
    Sketcher.Constraint("Radius", 3, Q("42.3 mm")),
    Sketcher.Constraint("Angle", 0, Q("-112 deg")),
    Sketcher.Constraint("DistanceX", -1, 1, 0, 2, Q("15.246488 mm")),
])
pad3 = doc.addObject("PartDesign::Pad", "Pad002")
body.addObject(pad3)
pad3.Profile = sketch18
pad3.Length = 5

# Sketch on XZ plane
sketch19 = doc.addObject("Sketcher::SketchObject", "Sketch018")
body.addObject(sketch19)
sketch19.AttachmentSupport = (doc.XZ_Plane, [""])
sketch19.MapMode = "FlatFace"
sketch19.AttachmentOffset = App.Placement(App.Vector(0, 0, -168), App.Rotation())
add_polygon(sketch19, [(-35, -3.268409), (-35, -1.268409), (35, -1.268409), (35, -3.268409)])  # lines 0-3
sketch19.addConstraint([
    Sketcher.Constraint("Vertical", 0),
    Sketcher.Constraint("Horizontal", 1),
    Sketcher.Constraint("Vertical", 2),
    Sketcher.Constraint("Horizontal", 3),
    Sketcher.Constraint("DistanceX", 1, 1, 1, 2, Q("70 mm")),
    Sketcher.Constraint("DistanceY", 0, 1, 0, 2, Q("2 mm")),
    Sketcher.Constraint("DistanceX", 0, 2, -1, 1, Q("35 mm")),
    Sketcher.Constraint("DistanceY", 0, 2, -1, 1, Q("1.268409 mm")),
])
pocket16 = doc.addObject("PartDesign::Pocket", "Pocket015")
body.addObject(pocket16)
pocket16.Profile = sketch19
pocket16.Length = 5
pocket16.Reversed = True

# Sketch on XZ plane
sketch20 = doc.addObject("Sketcher::SketchObject", "Sketch019")
body.addObject(sketch20)
sketch20.AttachmentSupport = (doc.XZ_Plane, [""])
sketch20.MapMode = "FlatFace"
sketch20.AttachmentOffset = App.Placement(App.Vector(0, 0, -180), App.Rotation())
sketch20.addGeometry(Part.Circle(App.Vector(0, 0, 0), App.Vector(0, 0, 1), 44), False)
sketch20.addConstraint([
    Sketcher.Constraint("Coincident", 0, 3, -1, 1),
    Sketcher.Constraint("Diameter", 0, Q("88 mm")),
])
pocket17 = doc.addObject("PartDesign::Pocket", "Pocket016")
body.addObject(pocket17)
pocket17.Profile = sketch20
pocket17.Length = 9
pocket17.Reversed = True

# Sketch on XZ plane
sketch21 = doc.addObject("Sketcher::SketchObject", "Sketch020")
body.addObject(sketch21)
sketch21.AttachmentSupport = (doc.XZ_Plane, [""])
sketch21.MapMode = "FlatFace"
sketch21.AttachmentOffset = App.Placement(App.Vector(0, 0, -171), App.Rotation())
sketch21.addGeometry([
    Part.LineSegment(App.Vector(-14.535856, 39.936936, 0), App.Vector(-13.851816, 38.057551, 0)),
    Part.ArcOfCircle(Part.Circle(App.Vector(0, 0, 0), App.Vector(0, 0, 1), 40.5), math.radians(110), math.radians(430)),
    Part.LineSegment(App.Vector(13.851816, 38.057551, 0), App.Vector(14.535856, 39.936936, 0)),
    Part.ArcOfCircle(Part.Circle(App.Vector(0, 0, 0), App.Vector(0, 0, 1), 42.5), math.radians(110), math.radians(430)),
], False)
sketch21.addConstraint([
    Sketcher.Constraint("Coincident", 0, 2, 1, 1),
    Sketcher.Constraint("Coincident", 1, 2, 2, 1),
    Sketcher.Constraint("Coincident", 2, 2, 3, 2),
    Sketcher.Constraint("Coincident", 3, 1, 0, 1),
    Sketcher.Constraint("Coincident", 1, 3, -1, 1),
    Sketcher.Constraint("Coincident", 3, 3, -1, 1),
    Sketcher.Constraint("Horizontal", 0, 2, 1, 2),
    Sketcher.Constraint("Horizontal", 2, 2, 3, 1),
    Sketcher.Constraint("Radius", 1, Q("40.5 mm")),
    Sketcher.Constraint("Radius", 3, Q("42.5 mm")),
    Sketcher.Constraint("Angle", 0, Q("-70 deg")),
    Sketcher.Constraint("DistanceY", -1, 1, 0, 2, Q("38.057551 mm")),
])
pocket18 = doc.addObject("PartDesign::Pocket", "Pocket017")
body.addObject(pocket18)
pocket18.Profile = sketch21
pocket18.Length = 5
pocket18.Reversed = True

doc.recompute()
